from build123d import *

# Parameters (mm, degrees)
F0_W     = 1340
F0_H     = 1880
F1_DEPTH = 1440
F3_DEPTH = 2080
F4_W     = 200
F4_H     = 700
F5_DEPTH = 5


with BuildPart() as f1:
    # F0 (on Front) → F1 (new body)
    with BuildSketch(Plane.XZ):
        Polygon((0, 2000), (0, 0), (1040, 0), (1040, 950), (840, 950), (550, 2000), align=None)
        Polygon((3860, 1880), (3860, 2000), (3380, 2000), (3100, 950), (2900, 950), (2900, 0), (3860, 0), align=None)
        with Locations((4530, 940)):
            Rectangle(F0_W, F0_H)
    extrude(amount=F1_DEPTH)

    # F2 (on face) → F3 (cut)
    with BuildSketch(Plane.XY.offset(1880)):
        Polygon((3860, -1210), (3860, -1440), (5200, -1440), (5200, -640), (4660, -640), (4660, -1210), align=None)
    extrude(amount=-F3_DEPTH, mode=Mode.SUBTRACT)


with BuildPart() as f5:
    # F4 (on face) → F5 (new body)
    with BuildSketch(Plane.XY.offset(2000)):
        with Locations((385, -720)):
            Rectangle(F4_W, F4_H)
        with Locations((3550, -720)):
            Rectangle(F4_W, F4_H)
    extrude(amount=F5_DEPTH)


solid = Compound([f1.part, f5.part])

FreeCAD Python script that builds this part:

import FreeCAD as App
import Part
import Sketcher
Q = App.Units.Quantity


def add_polygon(sketch, points):
    """Adds a closed chain of lines whose ends are joined by coincident constraints."""
    first, n = sketch.GeometryCount, len(points)
    for a, b in zip(points, points[1:] + points[:1]):
        sketch.addGeometry(Part.LineSegment(App.Vector(*a, 0), App.Vector(*b, 0)), False)
    for i in range(n):
        sketch.addConstraint(Sketcher.Constraint("Coincident", first + i, 2, first + (i + 1) % n, 1))

doc = App.newDocument("Part")
body = doc.addObject("PartDesign::Body", "Body")
body.AllowCompound = True

# Sketch on XZ plane
sketch1 = doc.addObject("Sketcher::SketchObject", "Sketch")
body.addObject(sketch1)
sketch1.AttachmentSupport = (doc.XZ_Plane, [""])
sketch1.MapMode = "FlatFace"
add_polygon(sketch1, [(0, 2000), (0, 0), (1040, 0), (1040, 950), (840, 950), (550, 2000)])  # lines 0-5
add_polygon(sketch1, [(3860, 2000), (3380, 2000), (3100, 950), (2900, 950), (2900, 0), (5200, 0), (5200, 1880), (3860, 1880)])  # lines 6-13
sketch1.addConstraint(Sketcher.Constraint("Vertical", 0))
sketch1.addConstraint(Sketcher.Constraint("Horizontal", 1))
sketch1.addConstraint(Sketcher.Constraint("Vertical", 2))
sketch1.addConstraint(Sketcher.Constraint("Horizontal", 3))
sketch1.addConstraint(Sketcher.Constraint("Horizontal", 5))
sketch1.addConstraint(Sketcher.Constraint("Horizontal", 6))
sketch1.addConstraint(Sketcher.Constraint("Horizontal", 8))
sketch1.addConstraint(Sketcher.Constraint("Vertical", 9))
sketch1.addConstraint(Sketcher.Constraint("Horizontal", 10))
sketch1.addConstraint(Sketcher.Constraint("Vertical", 11))
sketch1.addConstraint(Sketcher.Constraint("Horizontal", 12))
sketch1.addConstraint(Sketcher.Constraint("Vertical", 13))
sketch1.addConstraint(Sketcher.Constraint("Coincident", 0, 2, -1, 1))
sketch1.addConstraint(Sketcher.Constraint("PointOnObject", 9, 2, -1))
sketch1.addConstraint(Sketcher.Constraint("Horizontal", 5, 2, 6, 2))
sketch1.addConstraint(Sketcher.Constraint("Horizontal", 3, 2, 7, 2))
sketch1.addConstraint(Sketcher.Constraint("Equal", 3, 8))
sketch1.addConstraint(Sketcher.Constraint("DistanceX", 1, 1, 1, 2, Q("1040 mm")))
sketch1.addConstraint(Sketcher.Constraint("DistanceX", 3, 2, 3, 1, Q("200 mm")))
sketch1.addConstraint(Sketcher.Constraint("DistanceX", 5, 2, 5, 1, Q("550 mm")))
sketch1.addConstraint(Sketcher.Constraint("DistanceX", 6, 2, 6, 1, Q("480 mm")))
sketch1.addConstraint(Sketcher.Constraint("DistanceX", 10, 1, 10, 2, Q("2300 mm")))
sketch1.addConstraint(Sketcher.Constraint("DistanceX", 12, 2, 12, 1, Q("1340 mm")))
sketch1.addConstraint(Sketcher.Constraint("DistanceY", 0, 2, 0, 1, Q("2000 mm")))
sketch1.addConstraint(Sketcher.Constraint("DistanceY", 2, 1, 2, 2, Q("950 mm")))
sketch1.addConstraint(Sketcher.Constraint("DistanceY", 11, 1, 11, 2, Q("1880 mm")))
sketch1.addConstraint(Sketcher.Constraint("DistanceX", -1, 1, 6, 2, Q("3380 mm")))
pad1 = doc.addObject("PartDesign::Pad", "Pad")
body.addObject(pad1)
pad1.Profile = sketch1
pad1.Length = 1440

# Sketch on XY plane
sketch2 = doc.addObject("Sketcher::SketchObject", "Sketch001")
body.addObject(sketch2)
sketch2.AttachmentSupport = (doc.XY_Plane, [""])
sketch2.MapMode = "FlatFace"
sketch2.AttachmentOffset = App.Placement(App.Vector(0, 0, 1880), App.Rotation())
add_polygon(sketch2, [(3860, -1210), (3860, -1440), (5200, -1440), (5200, -640), (4660, -640), (4660, -1210)])  # lines 0-5
sketch2.addConstraint(Sketcher.Constraint("Vertical", 0))
sketch2.addConstraint(Sketcher.Constraint("Horizontal", 1))
sketch2.addConstraint(Sketcher.Constraint("Vertical", 2))
sketch2.addConstraint(Sketcher.Constraint("Horizontal", 3))
sketch2.addConstraint(Sketcher.Constraint("Vertical", 4))
sketch2.addConstraint(Sketcher.Constraint("Horizontal", 5))
sketch2.addConstraint(Sketcher.Constraint("Equal", 5, 2))
sketch2.addConstraint(Sketcher.Constraint("DistanceX", 1, 1, 1, 2, Q("1340 mm")))
sketch2.addConstraint(Sketcher.Constraint("DistanceX", 3, 2, 3, 1, Q("540 mm")))
sketch2.addConstraint(Sketcher.Constraint("DistanceY", 0, 2, 0, 1, Q("230 mm")))
sketch2.addConstraint(Sketcher.Constraint("DistanceX", -1, 1, 0, 2, Q("3860 mm")))
sketch2.addConstraint(Sketcher.Constraint("DistanceY", 0, 2, -1, 1, Q("1440 mm")))
pocket1 = doc.addObject("PartDesign::Pocket", "Pocket")
body.addObject(pocket1)
pocket1.Profile = sketch2
pocket1.Length = 2080
body2 = doc.addObject("PartDesign::Body", "Body001")
body2.AllowCompound = True

# Sketch on XY plane
sketch3 = doc.addObject("Sketcher::SketchObject", "Sketch002")
body2.addObject(sketch3)
sketch3.AttachmentSupport = (doc.getObject("XY_Plane001"), [""])
sketch3.MapMode = "FlatFace"
sketch3.AttachmentOffset = App.Placement(App.Vector(0, 0, 2000), App.Rotation())
add_polygon(sketch3, [(285, -370), (285, -1070), (485, -1070), (485, -370)])  # lines 0-3
add_polygon(sketch3, [(3450, -370), (3450, -1070), (3650, -1070), (3650, -370)])  # lines 4-7
sketch3.addConstraint(Sketcher.Constraint("Vertical", 0))
sketch3.addConstraint(Sketcher.Constraint("Horizontal", 1))
sketch3.addConstraint(Sketcher.Constraint("Vertical", 2))
sketch3.addConstraint(Sketcher.Constraint("Horizontal", 3))
sketch3.addConstraint(Sketcher.Constraint("Vertical", 4))
sketch3.addConstraint(Sketcher.Constraint("Horizontal", 5))
sketch3.addConstraint(Sketcher.Constraint("Vertical", 6))
sketch3.addConstraint(Sketcher.Constraint("Horizontal", 7))
sketch3.addConstraint(Sketcher.Constraint("Horizontal", 1, 2, 4, 2))
sketch3.addConstraint(Sketcher.Constraint("Horizontal", 3, 2, 6, 2))
sketch3.addConstraint(Sketcher.Constraint("Equal", 3, 5))
sketch3.addConstraint(Sketcher.Constraint("DistanceX", 1, 1, 1, 2, Q("200 mm")))
sketch3.addConstraint(Sketcher.Constraint("DistanceY", 0, 2, 0, 1, Q("700 mm")))
sketch3.addConstraint(Sketcher.Constraint("DistanceX", -1, 1, 0, 2, Q("285 mm")))
sketch3.addConstraint(Sketcher.Constraint("DistanceY", 0, 2, -1, 1, Q("1070 mm")))
sketch3.addConstraint(Sketcher.Constraint("DistanceX", -1, 1, 4, 2, Q("3450 mm")))
pad2 = doc.addObject("PartDesign::Pad", "Pad001")
body2.addObject(pad2)
pad2.Profile = sketch3
pad2.Length = 5

doc.recompute()
